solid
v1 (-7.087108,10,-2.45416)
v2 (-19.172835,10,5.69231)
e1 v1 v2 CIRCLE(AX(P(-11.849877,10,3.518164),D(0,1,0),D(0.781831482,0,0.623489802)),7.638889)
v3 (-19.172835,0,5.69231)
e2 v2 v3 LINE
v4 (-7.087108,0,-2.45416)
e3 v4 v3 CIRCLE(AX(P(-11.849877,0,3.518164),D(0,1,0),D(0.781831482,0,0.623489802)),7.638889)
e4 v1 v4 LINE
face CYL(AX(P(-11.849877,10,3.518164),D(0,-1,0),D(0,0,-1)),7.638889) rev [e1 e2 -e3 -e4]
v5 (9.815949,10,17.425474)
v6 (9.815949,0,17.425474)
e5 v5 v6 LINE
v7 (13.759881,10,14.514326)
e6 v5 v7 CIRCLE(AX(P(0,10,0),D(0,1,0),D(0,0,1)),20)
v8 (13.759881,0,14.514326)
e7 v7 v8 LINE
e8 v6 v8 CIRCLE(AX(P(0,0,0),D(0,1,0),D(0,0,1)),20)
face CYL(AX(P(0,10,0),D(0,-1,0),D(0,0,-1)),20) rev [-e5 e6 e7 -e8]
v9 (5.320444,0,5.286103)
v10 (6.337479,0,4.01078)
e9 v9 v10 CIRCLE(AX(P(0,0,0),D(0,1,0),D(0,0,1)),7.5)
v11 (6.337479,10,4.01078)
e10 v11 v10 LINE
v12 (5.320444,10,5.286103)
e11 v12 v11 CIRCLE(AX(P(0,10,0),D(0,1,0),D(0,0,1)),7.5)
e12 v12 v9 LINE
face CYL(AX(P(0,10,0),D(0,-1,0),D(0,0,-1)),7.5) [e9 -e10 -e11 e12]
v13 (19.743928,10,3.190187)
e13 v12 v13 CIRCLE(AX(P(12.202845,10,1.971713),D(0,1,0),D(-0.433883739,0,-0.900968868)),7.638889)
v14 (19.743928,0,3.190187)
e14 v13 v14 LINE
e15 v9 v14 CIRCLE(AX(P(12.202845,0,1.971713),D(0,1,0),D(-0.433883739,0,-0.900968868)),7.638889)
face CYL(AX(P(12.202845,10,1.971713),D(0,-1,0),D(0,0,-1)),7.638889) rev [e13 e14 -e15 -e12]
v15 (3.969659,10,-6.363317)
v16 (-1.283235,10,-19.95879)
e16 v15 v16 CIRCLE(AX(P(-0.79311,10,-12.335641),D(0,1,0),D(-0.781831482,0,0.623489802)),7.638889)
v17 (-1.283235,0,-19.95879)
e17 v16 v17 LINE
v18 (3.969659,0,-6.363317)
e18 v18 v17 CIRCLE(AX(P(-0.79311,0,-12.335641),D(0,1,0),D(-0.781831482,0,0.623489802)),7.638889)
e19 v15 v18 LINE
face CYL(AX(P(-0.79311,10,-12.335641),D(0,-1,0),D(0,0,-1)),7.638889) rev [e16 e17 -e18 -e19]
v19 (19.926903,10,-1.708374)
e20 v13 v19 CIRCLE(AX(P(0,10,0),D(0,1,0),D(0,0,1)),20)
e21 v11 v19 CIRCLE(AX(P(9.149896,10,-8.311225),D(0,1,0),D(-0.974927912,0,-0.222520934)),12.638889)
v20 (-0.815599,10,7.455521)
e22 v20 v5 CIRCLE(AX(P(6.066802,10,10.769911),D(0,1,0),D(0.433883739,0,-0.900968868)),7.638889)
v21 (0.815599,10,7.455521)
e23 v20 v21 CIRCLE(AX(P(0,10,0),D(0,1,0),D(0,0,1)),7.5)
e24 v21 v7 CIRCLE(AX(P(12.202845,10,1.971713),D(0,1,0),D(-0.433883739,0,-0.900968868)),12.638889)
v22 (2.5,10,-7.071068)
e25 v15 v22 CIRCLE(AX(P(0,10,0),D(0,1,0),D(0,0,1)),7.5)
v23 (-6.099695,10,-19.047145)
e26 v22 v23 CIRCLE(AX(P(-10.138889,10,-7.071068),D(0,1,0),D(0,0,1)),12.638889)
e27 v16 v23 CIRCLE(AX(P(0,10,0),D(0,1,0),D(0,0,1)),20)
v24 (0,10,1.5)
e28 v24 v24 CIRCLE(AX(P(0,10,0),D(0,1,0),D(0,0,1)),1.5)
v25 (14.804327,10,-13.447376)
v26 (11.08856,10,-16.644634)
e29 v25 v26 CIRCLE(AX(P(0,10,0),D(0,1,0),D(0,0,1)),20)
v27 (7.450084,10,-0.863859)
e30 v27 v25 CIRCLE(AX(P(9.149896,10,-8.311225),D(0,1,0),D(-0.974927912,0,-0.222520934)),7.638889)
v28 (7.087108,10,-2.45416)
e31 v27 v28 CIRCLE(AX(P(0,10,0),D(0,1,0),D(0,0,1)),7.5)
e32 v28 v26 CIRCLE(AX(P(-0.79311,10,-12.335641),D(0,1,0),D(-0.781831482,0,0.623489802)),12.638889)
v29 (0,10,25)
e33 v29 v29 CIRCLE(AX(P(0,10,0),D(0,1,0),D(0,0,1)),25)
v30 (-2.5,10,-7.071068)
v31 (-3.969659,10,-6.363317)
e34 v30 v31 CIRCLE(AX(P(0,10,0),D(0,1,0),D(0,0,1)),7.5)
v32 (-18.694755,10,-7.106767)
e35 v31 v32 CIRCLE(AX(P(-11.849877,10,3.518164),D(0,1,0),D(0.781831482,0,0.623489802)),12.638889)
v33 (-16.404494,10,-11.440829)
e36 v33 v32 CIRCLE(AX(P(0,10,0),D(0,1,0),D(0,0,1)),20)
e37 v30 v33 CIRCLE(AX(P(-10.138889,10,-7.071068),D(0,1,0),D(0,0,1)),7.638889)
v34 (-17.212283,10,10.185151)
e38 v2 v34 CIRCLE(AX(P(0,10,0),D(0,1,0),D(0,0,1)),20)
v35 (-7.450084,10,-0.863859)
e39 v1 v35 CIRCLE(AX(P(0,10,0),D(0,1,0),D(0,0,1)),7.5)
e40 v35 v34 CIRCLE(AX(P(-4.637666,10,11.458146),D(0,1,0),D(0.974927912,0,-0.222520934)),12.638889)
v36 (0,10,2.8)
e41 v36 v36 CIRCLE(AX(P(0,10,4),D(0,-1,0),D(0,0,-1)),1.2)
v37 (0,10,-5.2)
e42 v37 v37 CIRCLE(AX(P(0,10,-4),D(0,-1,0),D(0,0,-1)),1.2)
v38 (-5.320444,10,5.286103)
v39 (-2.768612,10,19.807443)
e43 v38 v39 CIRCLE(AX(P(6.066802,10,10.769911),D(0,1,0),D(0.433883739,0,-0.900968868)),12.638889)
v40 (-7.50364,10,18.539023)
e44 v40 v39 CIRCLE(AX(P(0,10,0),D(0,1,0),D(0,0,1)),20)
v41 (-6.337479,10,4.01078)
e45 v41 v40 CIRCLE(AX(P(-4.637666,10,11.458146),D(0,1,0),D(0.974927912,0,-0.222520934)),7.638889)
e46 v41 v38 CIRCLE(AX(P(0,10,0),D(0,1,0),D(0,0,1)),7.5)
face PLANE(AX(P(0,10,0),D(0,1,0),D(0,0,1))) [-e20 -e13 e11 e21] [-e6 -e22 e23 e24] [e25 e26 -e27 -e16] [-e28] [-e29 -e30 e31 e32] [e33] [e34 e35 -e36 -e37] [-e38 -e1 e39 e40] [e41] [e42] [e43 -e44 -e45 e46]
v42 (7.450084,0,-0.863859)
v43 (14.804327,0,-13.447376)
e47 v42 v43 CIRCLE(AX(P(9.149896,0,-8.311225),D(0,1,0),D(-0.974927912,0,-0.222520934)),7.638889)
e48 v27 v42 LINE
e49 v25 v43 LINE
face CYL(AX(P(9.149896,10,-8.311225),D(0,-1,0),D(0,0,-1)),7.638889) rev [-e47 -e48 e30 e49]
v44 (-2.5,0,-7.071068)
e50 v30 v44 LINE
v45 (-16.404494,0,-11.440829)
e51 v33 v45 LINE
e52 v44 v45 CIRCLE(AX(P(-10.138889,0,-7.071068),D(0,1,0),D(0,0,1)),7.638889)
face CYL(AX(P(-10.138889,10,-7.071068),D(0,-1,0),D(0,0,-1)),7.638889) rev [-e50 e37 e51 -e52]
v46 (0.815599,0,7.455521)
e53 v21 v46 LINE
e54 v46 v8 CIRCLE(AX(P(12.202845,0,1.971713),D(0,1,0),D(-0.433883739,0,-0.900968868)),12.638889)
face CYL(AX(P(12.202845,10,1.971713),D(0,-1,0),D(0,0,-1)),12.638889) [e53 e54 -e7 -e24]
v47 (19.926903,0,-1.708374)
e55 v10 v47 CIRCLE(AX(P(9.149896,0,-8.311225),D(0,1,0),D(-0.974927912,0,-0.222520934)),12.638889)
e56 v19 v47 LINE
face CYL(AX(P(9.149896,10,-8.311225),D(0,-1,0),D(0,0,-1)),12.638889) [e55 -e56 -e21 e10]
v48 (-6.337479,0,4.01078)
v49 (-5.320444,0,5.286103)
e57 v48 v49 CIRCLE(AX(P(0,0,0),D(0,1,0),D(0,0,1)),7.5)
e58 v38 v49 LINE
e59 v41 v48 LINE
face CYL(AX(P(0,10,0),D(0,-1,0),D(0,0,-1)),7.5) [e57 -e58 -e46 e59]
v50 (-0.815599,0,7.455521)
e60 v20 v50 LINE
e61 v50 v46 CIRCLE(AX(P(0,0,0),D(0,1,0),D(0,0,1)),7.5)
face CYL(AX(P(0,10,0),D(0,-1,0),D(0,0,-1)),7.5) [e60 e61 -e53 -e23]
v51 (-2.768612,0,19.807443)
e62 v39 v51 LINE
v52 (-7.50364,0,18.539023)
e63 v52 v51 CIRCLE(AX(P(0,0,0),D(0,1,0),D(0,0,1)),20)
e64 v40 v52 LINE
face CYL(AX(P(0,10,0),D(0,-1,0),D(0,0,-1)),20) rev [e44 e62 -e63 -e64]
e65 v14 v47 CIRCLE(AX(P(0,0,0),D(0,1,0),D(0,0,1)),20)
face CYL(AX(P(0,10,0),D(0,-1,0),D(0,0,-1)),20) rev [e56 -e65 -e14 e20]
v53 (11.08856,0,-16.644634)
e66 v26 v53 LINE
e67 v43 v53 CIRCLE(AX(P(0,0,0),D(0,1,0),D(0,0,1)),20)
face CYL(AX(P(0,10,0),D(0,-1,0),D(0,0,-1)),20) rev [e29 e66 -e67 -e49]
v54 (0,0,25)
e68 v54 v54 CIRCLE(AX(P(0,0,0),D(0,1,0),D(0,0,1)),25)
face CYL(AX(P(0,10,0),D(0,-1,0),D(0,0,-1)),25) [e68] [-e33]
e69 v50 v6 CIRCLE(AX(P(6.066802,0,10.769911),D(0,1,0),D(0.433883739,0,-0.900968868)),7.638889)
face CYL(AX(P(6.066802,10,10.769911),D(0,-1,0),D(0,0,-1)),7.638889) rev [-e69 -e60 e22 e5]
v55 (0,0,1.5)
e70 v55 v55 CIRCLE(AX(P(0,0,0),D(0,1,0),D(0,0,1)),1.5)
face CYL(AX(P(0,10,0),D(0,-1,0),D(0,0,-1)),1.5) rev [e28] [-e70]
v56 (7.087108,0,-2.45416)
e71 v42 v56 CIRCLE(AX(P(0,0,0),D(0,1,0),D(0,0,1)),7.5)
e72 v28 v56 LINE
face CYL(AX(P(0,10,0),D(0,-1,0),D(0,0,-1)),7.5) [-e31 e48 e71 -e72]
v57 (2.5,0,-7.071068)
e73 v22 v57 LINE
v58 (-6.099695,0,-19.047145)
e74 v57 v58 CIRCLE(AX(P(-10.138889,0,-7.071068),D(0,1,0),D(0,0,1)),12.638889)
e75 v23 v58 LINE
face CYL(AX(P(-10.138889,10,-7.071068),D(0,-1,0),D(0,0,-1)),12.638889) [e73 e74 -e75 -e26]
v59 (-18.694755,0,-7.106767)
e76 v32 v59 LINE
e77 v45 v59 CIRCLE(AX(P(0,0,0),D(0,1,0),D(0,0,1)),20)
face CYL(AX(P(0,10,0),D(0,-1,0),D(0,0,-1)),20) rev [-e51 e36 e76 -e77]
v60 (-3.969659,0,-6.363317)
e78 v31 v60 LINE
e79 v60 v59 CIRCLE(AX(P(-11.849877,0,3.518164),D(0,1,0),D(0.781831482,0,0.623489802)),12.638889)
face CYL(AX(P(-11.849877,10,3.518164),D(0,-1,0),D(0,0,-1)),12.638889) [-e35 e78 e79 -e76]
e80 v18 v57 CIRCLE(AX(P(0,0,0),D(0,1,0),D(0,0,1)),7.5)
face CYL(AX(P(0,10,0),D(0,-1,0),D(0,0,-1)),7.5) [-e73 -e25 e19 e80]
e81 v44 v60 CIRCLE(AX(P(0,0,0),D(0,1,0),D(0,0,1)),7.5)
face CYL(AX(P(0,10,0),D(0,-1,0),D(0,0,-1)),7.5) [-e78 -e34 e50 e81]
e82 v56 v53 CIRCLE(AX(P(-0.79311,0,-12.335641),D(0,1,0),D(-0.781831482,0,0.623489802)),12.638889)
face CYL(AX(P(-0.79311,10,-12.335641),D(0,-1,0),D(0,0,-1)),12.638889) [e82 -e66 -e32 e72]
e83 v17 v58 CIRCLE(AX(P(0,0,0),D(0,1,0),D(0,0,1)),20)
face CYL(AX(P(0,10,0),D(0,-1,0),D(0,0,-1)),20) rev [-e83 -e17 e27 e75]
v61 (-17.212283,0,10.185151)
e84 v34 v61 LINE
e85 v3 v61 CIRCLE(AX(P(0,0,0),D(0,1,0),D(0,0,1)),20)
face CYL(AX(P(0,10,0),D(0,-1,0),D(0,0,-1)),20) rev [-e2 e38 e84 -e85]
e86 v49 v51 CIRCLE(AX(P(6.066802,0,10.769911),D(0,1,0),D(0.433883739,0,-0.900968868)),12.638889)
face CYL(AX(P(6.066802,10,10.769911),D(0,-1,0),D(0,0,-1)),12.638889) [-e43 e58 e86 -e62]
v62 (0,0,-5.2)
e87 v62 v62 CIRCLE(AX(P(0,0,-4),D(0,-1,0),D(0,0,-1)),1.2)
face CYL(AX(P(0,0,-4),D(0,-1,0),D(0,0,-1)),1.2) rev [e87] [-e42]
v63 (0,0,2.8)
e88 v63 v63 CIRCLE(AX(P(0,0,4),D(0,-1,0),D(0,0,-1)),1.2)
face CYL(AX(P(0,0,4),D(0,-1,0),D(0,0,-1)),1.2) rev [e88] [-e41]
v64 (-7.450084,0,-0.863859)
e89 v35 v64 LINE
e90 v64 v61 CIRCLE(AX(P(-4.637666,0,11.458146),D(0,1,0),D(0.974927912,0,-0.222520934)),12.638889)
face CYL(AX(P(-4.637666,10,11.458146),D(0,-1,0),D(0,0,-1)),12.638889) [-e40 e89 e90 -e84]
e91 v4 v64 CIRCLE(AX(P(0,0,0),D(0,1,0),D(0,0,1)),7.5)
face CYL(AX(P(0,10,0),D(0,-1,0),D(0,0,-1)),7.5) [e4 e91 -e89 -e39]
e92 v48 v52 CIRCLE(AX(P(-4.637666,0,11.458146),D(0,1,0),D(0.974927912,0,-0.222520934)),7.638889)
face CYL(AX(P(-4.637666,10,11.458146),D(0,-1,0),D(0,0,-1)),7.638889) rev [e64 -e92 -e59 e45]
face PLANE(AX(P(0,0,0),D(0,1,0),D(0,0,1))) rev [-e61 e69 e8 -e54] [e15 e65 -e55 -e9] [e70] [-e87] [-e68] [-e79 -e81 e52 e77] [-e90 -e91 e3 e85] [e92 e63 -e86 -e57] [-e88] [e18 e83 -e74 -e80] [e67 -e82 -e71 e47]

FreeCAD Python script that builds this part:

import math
import FreeCAD as App
import Part
import Sketcher

doc = App.newDocument("Part")
body = doc.addObject("PartDesign::Body", "Body")

# Sketch on XZ plane
sketch1 = body.newObject("Sketcher::SketchObject", "Sketch")
sketch1.AttachmentSupport = (doc.getObject("XZ_Plane"), [""])
sketch1.MapMode = "FlatFace"
sketch1.addGeometry(Part.Circle(App.Vector(0, 0, 0), App.Vector(0, 0, 1), 25), False)
sketch1.addGeometry(Part.Circle(App.Vector(0, 0, 0), App.Vector(0, 0, 1), 1.5), False)
sketch1.addGeometry(Part.ArcOfCircle(Part.Circle(App.Vector(-10.1, -7.1, 0), App.Vector(0, 0, 1), 12.6), math.radians(-71), math.radians(0)), False)
sketch1.addGeometry(Part.ArcOfCircle(Part.Circle(App.Vector(0, 0, 0), App.Vector(0, 0, 1), 20), math.radians(-108), math.radians(215)), False)
sketch1.addGeometry(Part.ArcOfCircle(Part.Circle(App.Vector(-10.1, -7.1, 0), App.Vector(0, 0, 1), 7.6), math.radians(-145), math.radians(0)), False)
sketch1.addGeometry(Part.ArcOfCircle(Part.Circle(App.Vector(0, 0, 0), App.Vector(0, 0, 1), 7.5), math.radians(-71), math.radians(251)), False)
sketch1.addConstraint(Sketcher.Constraint("Coincident", 2, 1, 3, 1))
sketch1.addConstraint(Sketcher.Constraint("Tangent", 3, 2, 4, 1))
sketch1.addConstraint(Sketcher.Constraint("Coincident", 4, 2, 5, 2))
sketch1.addConstraint(Sketcher.Constraint("Coincident", 5, 1, 2, 2))
sketch1.addConstraint(Sketcher.Constraint("Coincident", 0, 3, -1, 1))
sketch1.addConstraint(Sketcher.Constraint("Coincident", 1, 3, -1, 1))
sketch1.addConstraint(Sketcher.Constraint("Coincident", 3, 3, -1, 1))
sketch1.addConstraint(Sketcher.Constraint("Coincident", 5, 3, -1, 1))
sketch1.addConstraint(Sketcher.Constraint("Coincident", 4, 3, 2, 3))
sketch1.addConstraint(Sketcher.Constraint("Horizontal", 2, 3, 4, 2))
sketch1.addConstraint(Sketcher.Constraint("Horizontal", 4, 2, 5, 1))
sketch1.addConstraint(Sketcher.Constraint("Diameter", 0, 50.0))
sketch1.addConstraint(Sketcher.Constraint("Diameter", 1, 3.0))
sketch1.addConstraint(Sketcher.Constraint("Radius", 3, 20.0))
sketch1.addConstraint(Sketcher.Constraint("Radius", 5, 7.5))
sketch1.addConstraint(Sketcher.Constraint("DistanceX", 4, 2, 5, 1, 5.0))
pad1 = body.newObject("PartDesign::Pad", "Pad")
pad1.Profile = sketch1
pad1.Length = 10
pad1.Reversed = True
doc.recompute()

polarpattern = body.newObject("PartDesign::PolarPattern", "PolarPattern")
polarpattern.Originals = [pad1]
polarpattern.Axis = (doc.getObject("Y_Axis"), [""])
polarpattern.Angle = 360
polarpattern.Occurrences = 7
body.Tip = polarpattern

# Sketch on XZ plane
sketch2 = body.newObject("Sketcher::SketchObject", "Sketch001")
sketch2.AttachmentSupport = (doc.getObject("XZ_Plane"), [""])
sketch2.MapMode = "FlatFace"
sketch2.addGeometry(Part.Circle(App.Vector(0, -4, 0), App.Vector(0, 0, 1), 1.2), False)
sketch2.addConstraint(Sketcher.Constraint("PointOnObject", 0, 3, -2))
sketch2.addConstraint(Sketcher.Constraint("Diameter", 0, 2.4))
sketch2.addConstraint(Sketcher.Constraint("DistanceY", 0, 3, -1, 1, 4.0))
doc.recompute()
hole = body.newObject("PartDesign::Hole", "Hole")
hole.Profile = sketch2
hole.ThreadType = "None"
hole.Diameter = 2.4
hole.DepthType = "ThroughAll"
doc.recompute()

polarpattern2 = body.newObject("PartDesign::PolarPattern", "PolarPattern001")
polarpattern2.Originals = [hole]
polarpattern2.Axis = (doc.getObject("Y_Axis"), [""])
polarpattern2.Angle = 360
polarpattern2.Occurrences = 2
body.Tip = polarpattern2

doc.recompute()
